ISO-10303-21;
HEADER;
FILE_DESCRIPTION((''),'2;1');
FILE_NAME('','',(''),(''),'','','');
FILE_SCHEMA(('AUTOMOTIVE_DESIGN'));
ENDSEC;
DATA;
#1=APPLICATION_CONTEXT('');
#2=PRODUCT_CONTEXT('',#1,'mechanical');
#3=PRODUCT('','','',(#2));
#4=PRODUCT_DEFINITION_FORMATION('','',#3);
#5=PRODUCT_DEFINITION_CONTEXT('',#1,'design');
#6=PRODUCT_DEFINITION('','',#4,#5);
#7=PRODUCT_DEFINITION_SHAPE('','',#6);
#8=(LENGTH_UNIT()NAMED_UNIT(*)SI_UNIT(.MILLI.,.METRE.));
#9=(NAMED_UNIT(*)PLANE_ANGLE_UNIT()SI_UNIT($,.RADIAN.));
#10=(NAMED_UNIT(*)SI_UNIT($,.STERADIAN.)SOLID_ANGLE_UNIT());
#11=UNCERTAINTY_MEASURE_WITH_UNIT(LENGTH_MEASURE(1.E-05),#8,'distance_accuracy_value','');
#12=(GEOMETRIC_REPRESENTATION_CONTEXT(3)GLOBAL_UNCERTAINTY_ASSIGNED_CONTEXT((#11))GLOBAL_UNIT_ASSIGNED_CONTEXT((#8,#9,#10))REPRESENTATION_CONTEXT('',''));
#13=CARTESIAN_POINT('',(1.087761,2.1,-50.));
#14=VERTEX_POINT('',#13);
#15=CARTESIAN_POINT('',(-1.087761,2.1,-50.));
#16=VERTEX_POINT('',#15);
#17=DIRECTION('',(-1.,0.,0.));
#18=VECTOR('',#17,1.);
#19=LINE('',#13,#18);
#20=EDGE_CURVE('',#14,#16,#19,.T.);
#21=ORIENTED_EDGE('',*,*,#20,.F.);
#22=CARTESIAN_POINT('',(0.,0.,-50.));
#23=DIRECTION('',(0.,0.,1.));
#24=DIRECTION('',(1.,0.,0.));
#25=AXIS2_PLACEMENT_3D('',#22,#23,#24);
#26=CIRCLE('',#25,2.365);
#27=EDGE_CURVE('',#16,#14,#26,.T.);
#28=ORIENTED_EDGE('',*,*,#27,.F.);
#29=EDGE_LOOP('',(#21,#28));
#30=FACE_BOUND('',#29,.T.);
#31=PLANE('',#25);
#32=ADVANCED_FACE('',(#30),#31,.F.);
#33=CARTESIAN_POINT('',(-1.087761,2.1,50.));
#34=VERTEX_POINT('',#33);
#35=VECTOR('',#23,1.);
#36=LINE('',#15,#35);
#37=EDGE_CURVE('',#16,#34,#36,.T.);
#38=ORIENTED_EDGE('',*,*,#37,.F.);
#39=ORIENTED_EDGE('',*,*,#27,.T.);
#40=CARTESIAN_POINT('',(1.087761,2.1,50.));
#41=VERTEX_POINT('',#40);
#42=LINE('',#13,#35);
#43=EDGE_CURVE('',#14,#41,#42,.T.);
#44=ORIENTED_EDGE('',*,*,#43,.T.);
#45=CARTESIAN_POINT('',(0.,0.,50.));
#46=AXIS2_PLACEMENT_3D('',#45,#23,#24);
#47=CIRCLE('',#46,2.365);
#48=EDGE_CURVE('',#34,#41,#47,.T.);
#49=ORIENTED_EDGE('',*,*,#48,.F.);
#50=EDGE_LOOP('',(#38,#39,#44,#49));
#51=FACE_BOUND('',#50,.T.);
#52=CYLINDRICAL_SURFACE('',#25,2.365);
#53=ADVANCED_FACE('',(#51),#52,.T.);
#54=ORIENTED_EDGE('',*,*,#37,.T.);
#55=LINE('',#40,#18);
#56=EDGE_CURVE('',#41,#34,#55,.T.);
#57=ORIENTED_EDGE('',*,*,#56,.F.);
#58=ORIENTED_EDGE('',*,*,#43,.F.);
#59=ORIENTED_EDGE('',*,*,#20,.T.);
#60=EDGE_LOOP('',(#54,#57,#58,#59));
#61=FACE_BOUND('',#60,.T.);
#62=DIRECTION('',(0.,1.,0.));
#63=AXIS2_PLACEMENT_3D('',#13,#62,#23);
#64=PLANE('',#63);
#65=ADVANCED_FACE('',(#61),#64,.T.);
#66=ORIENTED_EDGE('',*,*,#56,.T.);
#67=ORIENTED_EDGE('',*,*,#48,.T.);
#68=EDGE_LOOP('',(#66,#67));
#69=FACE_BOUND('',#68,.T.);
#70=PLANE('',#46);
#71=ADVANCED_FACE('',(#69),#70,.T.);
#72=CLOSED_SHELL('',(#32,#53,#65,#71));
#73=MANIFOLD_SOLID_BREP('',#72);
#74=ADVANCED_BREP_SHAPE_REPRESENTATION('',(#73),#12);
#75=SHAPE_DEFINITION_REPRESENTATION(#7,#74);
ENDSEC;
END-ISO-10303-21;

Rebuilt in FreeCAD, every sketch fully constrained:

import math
import FreeCAD as App
import Part
import Sketcher
from FreeCAD import Vector

doc = App.newDocument("Part")
body = doc.addObject("PartDesign::Body", "Body")

sketch1 = body.newObject("Sketcher::SketchObject", "Sketch")
sketch1.AttachmentSupport = (doc.getObject("XY_Plane"), [""])
sketch1.MapMode = "FlatFace"
sketch1.AttachmentOffset = App.Placement(Vector(0, 0, 50), App.Rotation())
sketch1.addGeometry([
    Part.LineSegment(Vector(1.1, 2.1, 0), Vector(-1.1, 2.1, 0)),
    Part.ArcOfCircle(Part.Circle(Vector(0, 0, 0), Vector(0, 0, 1), 2.4), math.radians(117), math.radians(423)),
], False)
sketch1.addConstraint([
    Sketcher.Constraint("Coincident", 0, 1, 1, 2),
    Sketcher.Constraint("Coincident", 1, 1, 0, 2),
    Sketcher.Constraint("Horizontal", 0),
    Sketcher.Constraint("Coincident", 1, 3, -1, 1),
    Sketcher.Constraint("Radius", 1, 2.365),
    Sketcher.Constraint("DistanceY", -1, 1, 0, 1, 2.1),
])
pad1 = body.newObject("PartDesign::Pad", "Pad")
pad1.Profile = sketch1
pad1.Length = 100
pad1.Reversed = True

doc.recompute()
